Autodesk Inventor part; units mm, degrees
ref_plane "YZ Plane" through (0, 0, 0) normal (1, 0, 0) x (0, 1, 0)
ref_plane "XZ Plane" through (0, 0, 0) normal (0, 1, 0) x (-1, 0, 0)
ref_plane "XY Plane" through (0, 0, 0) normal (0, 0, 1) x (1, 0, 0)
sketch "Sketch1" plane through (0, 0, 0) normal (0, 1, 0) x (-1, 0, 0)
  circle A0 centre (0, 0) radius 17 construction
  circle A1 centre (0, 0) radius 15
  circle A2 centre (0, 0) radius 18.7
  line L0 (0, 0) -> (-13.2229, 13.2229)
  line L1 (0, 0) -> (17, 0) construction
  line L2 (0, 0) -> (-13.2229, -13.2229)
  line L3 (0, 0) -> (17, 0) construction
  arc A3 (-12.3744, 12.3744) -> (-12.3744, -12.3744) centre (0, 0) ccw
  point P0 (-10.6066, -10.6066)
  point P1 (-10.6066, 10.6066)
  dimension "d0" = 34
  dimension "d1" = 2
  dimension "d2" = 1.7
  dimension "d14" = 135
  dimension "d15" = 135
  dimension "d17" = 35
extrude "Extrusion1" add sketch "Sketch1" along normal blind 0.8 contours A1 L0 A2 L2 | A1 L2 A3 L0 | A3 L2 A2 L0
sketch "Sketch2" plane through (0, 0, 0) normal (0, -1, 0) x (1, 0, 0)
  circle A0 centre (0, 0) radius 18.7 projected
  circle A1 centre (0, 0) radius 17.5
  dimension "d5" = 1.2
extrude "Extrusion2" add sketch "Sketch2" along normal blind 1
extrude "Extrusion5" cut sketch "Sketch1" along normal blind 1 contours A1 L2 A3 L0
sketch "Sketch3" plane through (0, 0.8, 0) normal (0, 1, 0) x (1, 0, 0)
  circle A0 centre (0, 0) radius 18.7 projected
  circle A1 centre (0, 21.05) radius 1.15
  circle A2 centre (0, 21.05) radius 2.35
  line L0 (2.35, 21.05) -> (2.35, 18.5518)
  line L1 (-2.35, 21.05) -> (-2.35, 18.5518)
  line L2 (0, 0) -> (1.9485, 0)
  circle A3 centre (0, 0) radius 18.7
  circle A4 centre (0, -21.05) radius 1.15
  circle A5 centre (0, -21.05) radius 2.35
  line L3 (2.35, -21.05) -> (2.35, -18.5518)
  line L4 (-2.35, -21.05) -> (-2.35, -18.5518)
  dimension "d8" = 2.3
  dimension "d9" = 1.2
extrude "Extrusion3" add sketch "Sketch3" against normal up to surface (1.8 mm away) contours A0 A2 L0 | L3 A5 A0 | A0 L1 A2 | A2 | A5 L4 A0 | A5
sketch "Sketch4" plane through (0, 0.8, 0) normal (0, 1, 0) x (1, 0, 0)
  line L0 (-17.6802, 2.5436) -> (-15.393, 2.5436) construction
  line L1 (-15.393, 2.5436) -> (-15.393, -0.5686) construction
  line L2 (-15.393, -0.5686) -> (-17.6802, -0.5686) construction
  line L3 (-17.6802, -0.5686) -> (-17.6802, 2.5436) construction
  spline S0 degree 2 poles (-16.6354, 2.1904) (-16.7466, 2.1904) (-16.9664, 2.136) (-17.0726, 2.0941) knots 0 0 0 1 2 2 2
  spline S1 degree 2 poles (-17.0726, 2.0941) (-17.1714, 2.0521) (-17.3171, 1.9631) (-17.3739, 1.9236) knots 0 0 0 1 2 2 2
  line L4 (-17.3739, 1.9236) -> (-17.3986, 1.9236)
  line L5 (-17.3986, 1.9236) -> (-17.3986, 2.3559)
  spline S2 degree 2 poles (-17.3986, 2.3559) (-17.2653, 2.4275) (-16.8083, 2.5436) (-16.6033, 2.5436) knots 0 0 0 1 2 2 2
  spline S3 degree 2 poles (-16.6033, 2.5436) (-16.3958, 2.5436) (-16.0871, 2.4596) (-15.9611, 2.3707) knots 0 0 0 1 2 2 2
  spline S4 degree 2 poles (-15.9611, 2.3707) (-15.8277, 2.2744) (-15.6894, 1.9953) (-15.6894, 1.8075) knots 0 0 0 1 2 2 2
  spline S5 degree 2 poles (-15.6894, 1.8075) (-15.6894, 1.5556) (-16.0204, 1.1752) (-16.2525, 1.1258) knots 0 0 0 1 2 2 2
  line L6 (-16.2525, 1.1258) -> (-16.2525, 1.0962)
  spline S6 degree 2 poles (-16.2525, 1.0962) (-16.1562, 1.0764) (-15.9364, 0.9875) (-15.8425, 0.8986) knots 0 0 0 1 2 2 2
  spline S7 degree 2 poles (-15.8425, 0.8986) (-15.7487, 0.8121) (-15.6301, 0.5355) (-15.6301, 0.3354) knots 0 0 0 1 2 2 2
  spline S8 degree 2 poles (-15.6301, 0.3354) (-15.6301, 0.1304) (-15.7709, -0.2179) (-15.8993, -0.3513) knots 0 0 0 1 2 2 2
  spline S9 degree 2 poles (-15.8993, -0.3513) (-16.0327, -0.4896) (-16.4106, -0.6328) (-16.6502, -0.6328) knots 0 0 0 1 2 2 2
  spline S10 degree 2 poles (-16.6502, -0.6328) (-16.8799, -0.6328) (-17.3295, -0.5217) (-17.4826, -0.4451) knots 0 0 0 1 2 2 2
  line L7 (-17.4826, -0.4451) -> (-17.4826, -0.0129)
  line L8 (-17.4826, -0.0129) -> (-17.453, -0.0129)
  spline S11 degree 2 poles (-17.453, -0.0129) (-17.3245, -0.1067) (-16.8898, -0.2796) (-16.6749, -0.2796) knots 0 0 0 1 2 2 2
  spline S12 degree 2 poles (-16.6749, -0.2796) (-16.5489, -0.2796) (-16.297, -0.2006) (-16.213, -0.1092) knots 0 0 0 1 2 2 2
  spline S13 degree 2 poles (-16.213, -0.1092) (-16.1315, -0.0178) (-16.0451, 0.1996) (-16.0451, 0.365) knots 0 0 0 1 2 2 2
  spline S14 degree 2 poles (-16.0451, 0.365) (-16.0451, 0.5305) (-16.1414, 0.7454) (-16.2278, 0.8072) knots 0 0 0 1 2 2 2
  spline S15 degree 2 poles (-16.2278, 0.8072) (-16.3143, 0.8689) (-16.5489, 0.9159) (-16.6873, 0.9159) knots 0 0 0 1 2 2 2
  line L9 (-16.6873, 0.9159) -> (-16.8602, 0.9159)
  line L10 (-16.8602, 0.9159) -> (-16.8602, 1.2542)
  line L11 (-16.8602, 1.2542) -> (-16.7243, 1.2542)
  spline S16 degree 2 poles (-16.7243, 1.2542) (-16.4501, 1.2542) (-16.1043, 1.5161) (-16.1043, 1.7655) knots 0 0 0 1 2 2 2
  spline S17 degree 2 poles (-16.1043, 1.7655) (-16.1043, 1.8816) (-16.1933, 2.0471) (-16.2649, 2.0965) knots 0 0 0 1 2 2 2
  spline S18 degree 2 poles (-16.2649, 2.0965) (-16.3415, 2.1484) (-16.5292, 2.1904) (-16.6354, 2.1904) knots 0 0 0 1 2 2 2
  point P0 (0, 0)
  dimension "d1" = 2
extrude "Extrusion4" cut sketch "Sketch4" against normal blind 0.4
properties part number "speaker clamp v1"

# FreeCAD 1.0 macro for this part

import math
import FreeCAD as App
import Part
import Sketcher
from FreeCAD import Vector

doc = App.newDocument("Part")
body = doc.addObject("PartDesign::Body", "Body")

sketch1 = body.newObject("Sketcher::SketchObject", "Sketch")
sketch1.AttachmentSupport = (doc.getObject("XZ_Plane"), [""])
sketch1.MapMode = "FlatFace"
sketch1.addGeometry(Part.Circle(Vector(0, 0, 0), Vector(0, 0, 1), 19), False)
sketch1.addGeometry(Part.Circle(Vector(0, 0, 0), Vector(0, 0, 1), 15), False)
sketch1.addConstraint(Sketcher.Constraint("Coincident", 0, 3, -1, 1))
sketch1.addConstraint(Sketcher.Constraint("Coincident", 1, 3, -1, 1))
sketch1.addConstraint(Sketcher.Constraint("Diameter", 1, 30.0))
sketch1.addConstraint(Sketcher.Constraint("Diameter", 0, 37.4))
pad1 = body.newObject("PartDesign::Pad", "Pad")
pad1.Profile = sketch1
pad1.Length = 0.8
pad1.Reversed = True

sketch2 = body.newObject("Sketcher::SketchObject", "Sketch001")
sketch2.AttachmentSupport = (doc.getObject("XZ_Plane"), [""])
sketch2.MapMode = "FlatFace"
sketch2.addGeometry(Part.Circle(Vector(0, 0, 0), Vector(0, 0, 1), 19), False)
sketch2.addGeometry(Part.Circle(Vector(0, 0, 0), Vector(0, 0, 1), 18), False)
sketch2.addConstraint(Sketcher.Constraint("Coincident", 0, 3, -1, 1))
sketch2.addConstraint(Sketcher.Constraint("Coincident", 1, 3, -1, 1))
sketch2.addConstraint(Sketcher.Constraint("Diameter", 1, 35.0))
sketch2.addConstraint(Sketcher.Constraint("Diameter", 0, 37.4))
pad2 = body.newObject("PartDesign::Pad", "Pad001")
pad2.Profile = sketch2
pad2.Length = 1

sketch3 = body.newObject("Sketcher::SketchObject", "Sketch002")
sketch3.AttachmentSupport = (doc.getObject("XZ_Plane"), [""])
sketch3.MapMode = "FlatFace"
sketch3.addGeometry(Part.ArcOfCircle(Part.Circle(Vector(0, 0, 0), Vector(0, 0, 1), 15), math.radians(-45), math.radians(45)), False)
sketch3.addGeometry(Part.LineSegment(Vector(10.6, 10.6, 0), Vector(12.4, 12.4, 0)), False)
sketch3.addGeometry(Part.ArcOfCircle(Part.Circle(Vector(0, 0, 0), Vector(0, 0, 1), 17.5), math.radians(-45), math.radians(45)), False)
sketch3.addGeometry(Part.LineSegment(Vector(12.4, -12.4, 0), Vector(10.6, -10.6, 0)), False)
sketch3.addConstraint(Sketcher.Constraint("Coincident", 0, 2, 1, 1))
sketch3.addConstraint(Sketcher.Constraint("Coincident", 1, 2, 2, 2))
sketch3.addConstraint(Sketcher.Constraint("Coincident", 2, 1, 3, 1))
sketch3.addConstraint(Sketcher.Constraint("Coincident", 3, 2, 0, 1))
sketch3.addConstraint(Sketcher.Constraint("Coincident", 0, 3, -1, 1))
sketch3.addConstraint(Sketcher.Constraint("Coincident", 2, 3, -1, 1))
sketch3.addConstraint(Sketcher.Constraint("Perpendicular", 1, 3))
sketch3.addConstraint(Sketcher.Constraint("Vertical", 1, 2, 2, 1))
sketch3.addConstraint(Sketcher.Constraint("Vertical", 0, 2, 3, 2))
sketch3.addConstraint(Sketcher.Constraint("Radius", 2, 17.5))
sketch3.addConstraint(Sketcher.Constraint("Radius", 0, 15.0))
sketch3.addConstraint(Sketcher.Constraint("DistanceY", 2, 1, 0, 2, 22.981))
pocket1 = body.newObject("PartDesign::Pocket", "Pocket")
pocket1.Profile = sketch3
pocket1.Length = 1

sketch4 = body.newObject("Sketcher::SketchObject", "Sketch003")
sketch4.AttachmentSupport = (doc.getObject("XZ_Plane"), [""])
sketch4.MapMode = "FlatFace"
sketch4.AttachmentOffset = App.Placement(Vector(0, 0, -0.8), App.Rotation())
sketch4.addGeometry(Part.LineSegment(Vector(2.4, -18.6, 0), Vector(2.4, -21.1, 0)), False)
sketch4.addGeometry(Part.ArcOfCircle(Part.Circle(Vector(0, -21.1, 0), Vector(0, 0, 1), 2.4), math.radians(180), math.radians(360)), False)
sketch4.addGeometry(Part.LineSegment(Vector(-2.4, -21.1, 0), Vector(-2.4, -18.6, 0)), False)
sketch4.addGeometry(Part.ArcOfCircle(Part.Circle(Vector(0, 0, 0), Vector(0, 0, 1), 18.7), math.radians(-97.22), math.radians(-82.78)), False)
sketch4.addGeometry(Part.Circle(Vector(0, -21.1, 0), Vector(0, 0, 1), 1.1), False)
sketch4.addGeometry(Part.LineSegment(Vector(2.4, 21.1, 0), Vector(2.4, 18.6, 0)), False)
sketch4.addGeometry(Part.ArcOfCircle(Part.Circle(Vector(0, 0, 0), Vector(0, 0, 1), 18.7), math.radians(82.78), math.radians(97.22)), False)
sketch4.addGeometry(Part.LineSegment(Vector(-2.4, 18.6, 0), Vector(-2.4, 21.1, 0)), False)
sketch4.addGeometry(Part.ArcOfCircle(Part.Circle(Vector(0, 21.1, 0), Vector(0, 0, 1), 2.4), math.radians(0), math.radians(180)), False)
sketch4.addGeometry(Part.Circle(Vector(0, 21.1, 0), Vector(0, 0, 1), 1.1), False)
sketch4.addConstraint(Sketcher.Constraint("Tangent", 0, 2, 1, 2))
sketch4.addConstraint(Sketcher.Constraint("Tangent", 1, 1, 2, 1))
sketch4.addConstraint(Sketcher.Constraint("Coincident", 2, 2, 3, 1))
sketch4.addConstraint(Sketcher.Constraint("Coincident", 3, 2, 0, 1))
sketch4.addConstraint(Sketcher.Constraint("Coincident", 5, 2, 6, 1))
sketch4.addConstraint(Sketcher.Constraint("Coincident", 6, 2, 7, 1))
sketch4.addConstraint(Sketcher.Constraint("Tangent", 7, 2, 8, 2))
sketch4.addConstraint(Sketcher.Constraint("Tangent", 8, 1, 5, 1))
sketch4.addConstraint(Sketcher.Constraint("Vertical", 0))
sketch4.addConstraint(Sketcher.Constraint("Vertical", 2))
sketch4.addConstraint(Sketcher.Constraint("Vertical", 5))
sketch4.addConstraint(Sketcher.Constraint("Vertical", 7))
sketch4.addConstraint(Sketcher.Constraint("Coincident", 3, 3, -1, 1))
sketch4.addConstraint(Sketcher.Constraint("Coincident", 6, 3, -1, 1))
sketch4.addConstraint(Sketcher.Constraint("Coincident", 4, 3, 1, 3))
sketch4.addConstraint(Sketcher.Constraint("Coincident", 9, 3, 8, 3))
sketch4.addConstraint(Sketcher.Constraint("Equal", 3, 6))
sketch4.addConstraint(Sketcher.Constraint("Equal", 1, 8))
sketch4.addConstraint(Sketcher.Constraint("Equal", 4, 9))
sketch4.addConstraint(Sketcher.Constraint("Symmetric", 1, 3, 8, 3, -1, 1))
sketch4.addConstraint(Sketcher.Constraint("PointOnObject", 1, 3, -2))
sketch4.addConstraint(Sketcher.Constraint("Diameter", 4, 2.3))
sketch4.addConstraint(Sketcher.Constraint("Radius", 3, 18.7))
sketch4.addConstraint(Sketcher.Constraint("Radius", 1, 2.35))
sketch4.addConstraint(Sketcher.Constraint("DistanceY", 1, 3, 8, 3, 42.1))
pad3 = body.newObject("PartDesign::Pad", "Pad002")
pad3.Profile = sketch4
pad3.Length = 1.8

sketch5 = body.newObject("Sketcher::SketchObject", "Sketch004")
sketch5.AttachmentSupport = (doc.getObject("XZ_Plane"), [""])
sketch5.MapMode = "FlatFace"
sketch5.AttachmentOffset = App.Placement(Vector(0, 0, -0.8), App.Rotation())
sketch5.addGeometry(Part.BSplineCurve([Vector(-16.6354, -2.1904, 0), Vector(-16.7466, -2.1904, 0), Vector(-16.9664, -2.136, 0), Vector(-17.0726, -2.0941, 0)], [3, 1, 3], [0, 1, 2], False, 2, [1, 1, 1, 1], False), False)
sketch5.addGeometry(Part.BSplineCurve([Vector(-16.2649, -2.0965, 0), Vector(-16.3415, -2.1484, 0), Vector(-16.5292, -2.1904, 0), Vector(-16.6354, -2.1904, 0)], [3, 1, 3], [0, 1, 2], False, 2, [1, 1, 1, 1], False), False)
sketch5.addGeometry(Part.BSplineCurve([Vector(-16.1043, -1.7655, 0), Vector(-16.1043, -1.8816, 0), Vector(-16.1933, -2.0471, 0), Vector(-16.2649, -2.0965, 0)], [3, 1, 3], [0, 1, 2], False, 2, [1, 1, 1, 1], False), False)
sketch5.addGeometry(Part.BSplineCurve([Vector(-16.7243, -1.2542, 0), Vector(-16.4501, -1.2542, 0), Vector(-16.1043, -1.5161, 0), Vector(-16.1043, -1.7655, 0)], [3, 1, 3], [0, 1, 2], False, 2, [1, 1, 1, 1], False), False)
sketch5.addGeometry(Part.LineSegment(Vector(-16.7243, -1.2542, 0), Vector(-16.8602, -1.2542, 0)), False)
sketch5.addGeometry(Part.LineSegment(Vector(-16.8602, -1.2542, 0), Vector(-16.8602, -0.9159, 0)), False)
sketch5.addGeometry(Part.LineSegment(Vector(-16.8602, -0.9159, 0), Vector(-16.6873, -0.9159, 0)), False)
sketch5.addGeometry(Part.BSplineCurve([Vector(-16.2278, -0.8072, 0), Vector(-16.3143, -0.8689, 0), Vector(-16.5489, -0.9159, 0), Vector(-16.6873, -0.9159, 0)], [3, 1, 3], [0, 1, 2], False, 2, [1, 1, 1, 1], False), False)
sketch5.addGeometry(Part.BSplineCurve([Vector(-16.0451, -0.365, 0), Vector(-16.0451, -0.5305, 0), Vector(-16.1414, -0.7454, 0), Vector(-16.2278, -0.8072, 0)], [3, 1, 3], [0, 1, 2], False, 2, [1, 1, 1, 1], False), False)
sketch5.addGeometry(Part.BSplineCurve([Vector(-16.213, 0.1092, 0), Vector(-16.1315, 0.0178, 0), Vector(-16.0451, -0.1996, 0), Vector(-16.0451, -0.365, 0)], [3, 1, 3], [0, 1, 2], False, 2, [1, 1, 1, 1], False), False)
sketch5.addGeometry(Part.BSplineCurve([Vector(-16.6749, 0.2796, 0), Vector(-16.5489, 0.2796, 0), Vector(-16.297, 0.2006, 0), Vector(-16.213, 0.1092, 0)], [3, 1, 3], [0, 1, 2], False, 2, [1, 1, 1, 1], False), False)
sketch5.addGeometry(Part.BSplineCurve([Vector(-17.453, 0.0129, 0), Vector(-17.3245, 0.1067, 0), Vector(-16.8898, 0.2796, 0), Vector(-16.6749, 0.2796, 0)], [3, 1, 3], [0, 1, 2], False, 2, [1, 1, 1, 1], False), False)
sketch5.addGeometry(Part.LineSegment(Vector(-17.453, 0.0129, 0), Vector(-17.4826, 0.0129, 0)), False)
sketch5.addGeometry(Part.LineSegment(Vector(-17.4826, 0.0129, 0), Vector(-17.4826, 0.4451, 0)), False)
sketch5.addGeometry(Part.BSplineCurve([Vector(-16.6502, 0.6328, 0), Vector(-16.8799, 0.6328, 0), Vector(-17.3295, 0.5217, 0), Vector(-17.4826, 0.4451, 0)], [3, 1, 3], [0, 1, 2], False, 2, [1, 1, 1, 1], False), False)
sketch5.addGeometry(Part.BSplineCurve([Vector(-15.8993, 0.3513, 0), Vector(-16.0327, 0.4896, 0), Vector(-16.4106, 0.6328, 0), Vector(-16.6502, 0.6328, 0)], [3, 1, 3], [0, 1, 2], False, 2, [1, 1, 1, 1], False), False)
sketch5.addGeometry(Part.BSplineCurve([Vector(-15.6301, -0.3354, 0), Vector(-15.6301, -0.1304, 0), Vector(-15.7709, 0.2179, 0), Vector(-15.8993, 0.3513, 0)], [3, 1, 3], [0, 1, 2], False, 2, [1, 1, 1, 1], False), False)
sketch5.addGeometry(Part.BSplineCurve([Vector(-15.8425, -0.8986, 0), Vector(-15.7487, -0.8121, 0), Vector(-15.6301, -0.5355, 0), Vector(-15.6301, -0.3354, 0)], [3, 1, 3], [0, 1, 2], False, 2, [1, 1, 1, 1], False), False)
sketch5.addGeometry(Part.BSplineCurve([Vector(-16.2525, -1.0962, 0), Vector(-16.1562, -1.0764, 0), Vector(-15.9364, -0.9875, 0), Vector(-15.8425, -0.8986, 0)], [3, 1, 3], [0, 1, 2], False, 2, [1, 1, 1, 1], False), False)
sketch5.addGeometry(Part.LineSegment(Vector(-16.2525, -1.0962, 0), Vector(-16.2525, -1.1258, 0)), False)
sketch5.addGeometry(Part.BSplineCurve([Vector(-15.6894, -1.8075, 0), Vector(-15.6894, -1.5556, 0), Vector(-16.0204, -1.1752, 0), Vector(-16.2525, -1.1258, 0)], [3, 1, 3], [0, 1, 2], False, 2, [1, 1, 1, 1], False), False)
sketch5.addGeometry(Part.BSplineCurve([Vector(-15.9611, -2.3707, 0), Vector(-15.8277, -2.2744, 0), Vector(-15.6894, -1.9953, 0), Vector(-15.6894, -1.8075, 0)], [3, 1, 3], [0, 1, 2], False, 2, [1, 1, 1, 1], False), False)
sketch5.addGeometry(Part.BSplineCurve([Vector(-16.6033, -2.5436, 0), Vector(-16.3958, -2.5436, 0), Vector(-16.0871, -2.4596, 0), Vector(-15.9611, -2.3707, 0)], [3, 1, 3], [0, 1, 2], False, 2, [1, 1, 1, 1], False), False)
sketch5.addGeometry(Part.BSplineCurve([Vector(-17.3986, -2.3559, 0), Vector(-17.2653, -2.4275, 0), Vector(-16.8083, -2.5436, 0), Vector(-16.6033, -2.5436, 0)], [3, 1, 3], [0, 1, 2], False, 2, [1, 1, 1, 1], False), False)
sketch5.addGeometry(Part.LineSegment(Vector(-17.3986, -2.3559, 0), Vector(-17.3986, -1.9236, 0)), False)
sketch5.addGeometry(Part.LineSegment(Vector(-17.3986, -1.9236, 0), Vector(-17.3739, -1.9236, 0)), False)
sketch5.addGeometry(Part.BSplineCurve([Vector(-17.0726, -2.0941, 0), Vector(-17.1714, -2.0521, 0), Vector(-17.3171, -1.9631, 0), Vector(-17.3739, -1.9236, 0)], [3, 1, 3], [0, 1, 2], False, 2, [1, 1, 1, 1], False), False)
sketch5.addConstraint(Sketcher.Constraint("Block", 0))
sketch5.addConstraint(Sketcher.Constraint("Block", 1))
sketch5.addConstraint(Sketcher.Constraint("Block", 2))
sketch5.addConstraint(Sketcher.Constraint("Block", 3))
sketch5.addConstraint(Sketcher.Constraint("Block", 7))
sketch5.addConstraint(Sketcher.Constraint("Block", 8))
sketch5.addConstraint(Sketcher.Constraint("Block", 9))
sketch5.addConstraint(Sketcher.Constraint("Block", 10))
sketch5.addConstraint(Sketcher.Constraint("Block", 11))
sketch5.addConstraint(Sketcher.Constraint("Block", 14))
sketch5.addConstraint(Sketcher.Constraint("Block", 15))
sketch5.addConstraint(Sketcher.Constraint("Block", 16))
sketch5.addConstraint(Sketcher.Constraint("Block", 17))
sketch5.addConstraint(Sketcher.Constraint("Block", 18))
sketch5.addConstraint(Sketcher.Constraint("Block", 20))
sketch5.addConstraint(Sketcher.Constraint("Block", 21))
sketch5.addConstraint(Sketcher.Constraint("Block", 22))
sketch5.addConstraint(Sketcher.Constraint("Block", 23))
sketch5.addConstraint(Sketcher.Constraint("Block", 26))
sketch5.addConstraint(Sketcher.Constraint("Coincident", 3, 1, 4, 1))
sketch5.addConstraint(Sketcher.Constraint("Coincident", 4, 2, 5, 1))
sketch5.addConstraint(Sketcher.Constraint("Coincident", 5, 2, 6, 1))
sketch5.addConstraint(Sketcher.Constraint("Coincident", 6, 2, 7, 2))
sketch5.addConstraint(Sketcher.Constraint("Coincident", 11, 1, 12, 1))
sketch5.addConstraint(Sketcher.Constraint("Coincident", 12, 2, 13, 1))
sketch5.addConstraint(Sketcher.Constraint("Coincident", 13, 2, 14, 2))
sketch5.addConstraint(Sketcher.Constraint("Coincident", 18, 1, 19, 1))
sketch5.addConstraint(Sketcher.Constraint("Coincident", 19, 2, 20, 2))
sketch5.addConstraint(Sketcher.Constraint("Coincident", 23, 1, 24, 1))
sketch5.addConstraint(Sketcher.Constraint("Coincident", 24, 2, 25, 1))
sketch5.addConstraint(Sketcher.Constraint("Coincident", 25, 2, 26, 2))
sketch5.addConstraint(Sketcher.Constraint("Horizontal", 4))
sketch5.addConstraint(Sketcher.Constraint("Vertical", 5))
sketch5.addConstraint(Sketcher.Constraint("Horizontal", 6))
sketch5.addConstraint(Sketcher.Constraint("Horizontal", 12))
sketch5.addConstraint(Sketcher.Constraint("Vertical", 13))
sketch5.addConstraint(Sketcher.Constraint("Vertical", 24))
sketch5.addConstraint(Sketcher.Constraint("Horizontal", 25))
sketch5.addConstraint(Sketcher.Constraint("DistanceX", 4, 2, 4, 1, 0.136))
pocket2 = body.newObject("PartDesign::Pocket", "Pocket001")
pocket2.Profile = sketch5
pocket2.Length = 0.4
pocket2.Reversed = True

doc.recompute()
